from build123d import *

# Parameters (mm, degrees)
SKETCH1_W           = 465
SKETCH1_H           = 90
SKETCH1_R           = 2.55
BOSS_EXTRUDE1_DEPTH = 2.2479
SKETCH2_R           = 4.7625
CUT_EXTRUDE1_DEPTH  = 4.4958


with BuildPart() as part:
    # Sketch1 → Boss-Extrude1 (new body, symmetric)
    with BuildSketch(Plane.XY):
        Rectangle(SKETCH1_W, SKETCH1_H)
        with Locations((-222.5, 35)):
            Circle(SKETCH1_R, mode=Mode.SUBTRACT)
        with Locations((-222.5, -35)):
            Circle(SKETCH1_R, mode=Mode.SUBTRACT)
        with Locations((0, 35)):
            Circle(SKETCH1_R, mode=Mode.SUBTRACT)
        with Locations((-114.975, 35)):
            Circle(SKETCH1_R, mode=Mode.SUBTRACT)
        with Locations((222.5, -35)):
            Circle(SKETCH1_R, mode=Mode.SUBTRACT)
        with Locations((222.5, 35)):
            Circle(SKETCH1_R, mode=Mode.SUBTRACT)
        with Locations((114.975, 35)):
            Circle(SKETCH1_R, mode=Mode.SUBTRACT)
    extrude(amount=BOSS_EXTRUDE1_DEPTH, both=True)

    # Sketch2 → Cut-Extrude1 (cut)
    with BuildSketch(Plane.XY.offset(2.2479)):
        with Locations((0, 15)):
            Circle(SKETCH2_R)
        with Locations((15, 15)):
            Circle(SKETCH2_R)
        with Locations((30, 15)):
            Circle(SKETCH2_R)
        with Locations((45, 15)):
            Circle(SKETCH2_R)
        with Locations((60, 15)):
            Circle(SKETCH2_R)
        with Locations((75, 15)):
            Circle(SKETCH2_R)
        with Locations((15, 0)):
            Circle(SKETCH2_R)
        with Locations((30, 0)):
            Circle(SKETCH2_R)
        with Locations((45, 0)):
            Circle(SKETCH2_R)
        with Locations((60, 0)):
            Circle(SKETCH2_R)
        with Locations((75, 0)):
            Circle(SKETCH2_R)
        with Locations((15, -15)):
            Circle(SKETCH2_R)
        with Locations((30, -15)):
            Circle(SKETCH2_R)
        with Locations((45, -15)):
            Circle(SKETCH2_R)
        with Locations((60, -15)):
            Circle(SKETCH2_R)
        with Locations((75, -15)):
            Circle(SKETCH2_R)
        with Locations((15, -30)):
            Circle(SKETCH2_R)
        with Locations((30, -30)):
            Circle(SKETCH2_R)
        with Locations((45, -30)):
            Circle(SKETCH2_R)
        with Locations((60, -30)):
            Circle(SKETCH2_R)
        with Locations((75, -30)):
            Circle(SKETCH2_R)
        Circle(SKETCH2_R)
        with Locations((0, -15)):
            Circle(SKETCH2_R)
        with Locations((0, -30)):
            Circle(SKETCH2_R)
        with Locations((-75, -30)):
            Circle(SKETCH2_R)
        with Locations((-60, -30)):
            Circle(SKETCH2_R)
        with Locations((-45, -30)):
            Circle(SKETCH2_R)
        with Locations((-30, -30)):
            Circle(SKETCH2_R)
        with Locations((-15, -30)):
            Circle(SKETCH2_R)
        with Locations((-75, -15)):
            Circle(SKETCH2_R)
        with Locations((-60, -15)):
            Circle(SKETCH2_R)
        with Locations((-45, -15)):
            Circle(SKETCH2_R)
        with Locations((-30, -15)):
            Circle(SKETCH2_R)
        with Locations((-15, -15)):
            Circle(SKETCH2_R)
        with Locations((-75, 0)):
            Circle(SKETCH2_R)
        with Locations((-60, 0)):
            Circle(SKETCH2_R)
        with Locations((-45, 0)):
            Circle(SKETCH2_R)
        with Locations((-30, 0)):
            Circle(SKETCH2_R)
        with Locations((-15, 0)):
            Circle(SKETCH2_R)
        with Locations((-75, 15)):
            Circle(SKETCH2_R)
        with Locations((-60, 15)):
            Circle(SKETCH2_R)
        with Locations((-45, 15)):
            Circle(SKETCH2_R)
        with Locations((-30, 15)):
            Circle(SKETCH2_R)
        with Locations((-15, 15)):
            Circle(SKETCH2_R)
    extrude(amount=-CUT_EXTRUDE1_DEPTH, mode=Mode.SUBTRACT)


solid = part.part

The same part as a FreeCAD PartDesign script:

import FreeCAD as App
import Part
import Sketcher

doc = App.newDocument("Part")
body = doc.addObject("PartDesign::Body", "Body")

# Sketch on XY plane
sketch1 = body.newObject("Sketcher::SketchObject", "Sketch")
sketch1.AttachmentSupport = (doc.getObject("XY_Plane"), [""])
sketch1.MapMode = "FlatFace"
sketch1.addGeometry(Part.LineSegment(App.Vector(-232.5, 45, 0), App.Vector(-232.5, -45, 0)), False)
sketch1.addGeometry(Part.LineSegment(App.Vector(-232.5, -45, 0), App.Vector(232.5, -45, 0)), False)
sketch1.addGeometry(Part.LineSegment(App.Vector(232.5, -45, 0), App.Vector(232.5, 45, 0)), False)
sketch1.addGeometry(Part.LineSegment(App.Vector(232.5, 45, 0), App.Vector(-232.5, 45, 0)), False)
sketch1.addGeometry(Part.Circle(App.Vector(-222.5, -35, 0), App.Vector(0, 0, 1), 2.5), False)
sketch1.addGeometry(Part.Circle(App.Vector(222.5, -35, 0), App.Vector(0, 0, 1), 2.5), False)
sketch1.addGeometry(Part.Circle(App.Vector(-222.5, 35, 0), App.Vector(0, 0, 1), 2.5), False)
sketch1.addGeometry(Part.Circle(App.Vector(-115, 35, 0), App.Vector(0, 0, 1), 2.5), False)
sketch1.addGeometry(Part.Circle(App.Vector(0, 35, 0), App.Vector(0, 0, 1), 2.5), False)
sketch1.addGeometry(Part.Circle(App.Vector(115, 35, 0), App.Vector(0, 0, 1), 2.5), False)
sketch1.addGeometry(Part.Circle(App.Vector(222.5, 35, 0), App.Vector(0, 0, 1), 2.5), False)
sketch1.addConstraint(Sketcher.Constraint("Coincident", 0, 2, 1, 1))
sketch1.addConstraint(Sketcher.Constraint("Coincident", 1, 2, 2, 1))
sketch1.addConstraint(Sketcher.Constraint("Coincident", 2, 2, 3, 1))
sketch1.addConstraint(Sketcher.Constraint("Coincident", 3, 2, 0, 1))
sketch1.addConstraint(Sketcher.Constraint("Vertical", 0))
sketch1.addConstraint(Sketcher.Constraint("Horizontal", 1))
sketch1.addConstraint(Sketcher.Constraint("Vertical", 2))
sketch1.addConstraint(Sketcher.Constraint("Horizontal", 3))
sketch1.addConstraint(Sketcher.Constraint("Equal", 4, 5))
sketch1.addConstraint(Sketcher.Constraint("Equal", 5, 6))
sketch1.addConstraint(Sketcher.Constraint("Equal", 6, 7))
sketch1.addConstraint(Sketcher.Constraint("Equal", 7, 8))
sketch1.addConstraint(Sketcher.Constraint("Equal", 8, 9))
sketch1.addConstraint(Sketcher.Constraint("Equal", 9, 10))
sketch1.addConstraint(Sketcher.Constraint("Symmetric", 5, 3, 6, 3, -1, 1))
sketch1.addConstraint(Sketcher.Constraint("Symmetric", 4, 3, 10, 3, -1, 1))
sketch1.addConstraint(Sketcher.Constraint("Symmetric", 0, 2, 2, 2, -1, 1))
sketch1.addConstraint(Sketcher.Constraint("Symmetric", 4, 3, 5, 3, -2))
sketch1.addConstraint(Sketcher.Constraint("Symmetric", 7, 3, 9, 3, -2))
sketch1.addConstraint(Sketcher.Constraint("PointOnObject", 8, 3, -2))
sketch1.addConstraint(Sketcher.Constraint("Horizontal", 6, 3, 7, 3))
sketch1.addConstraint(Sketcher.Constraint("Horizontal", 7, 3, 8, 3))
sketch1.addConstraint(Sketcher.Constraint("Diameter", 4, 5.1))
sketch1.addConstraint(Sketcher.Constraint("DistanceX", 1, 1, 1, 2, 465.0))
sketch1.addConstraint(Sketcher.Constraint("DistanceY", 0, 2, 0, 1, 90.0))
sketch1.addConstraint(Sketcher.Constraint("DistanceY", 4, 3, -1, 1, 35.0))
sketch1.addConstraint(Sketcher.Constraint("DistanceX", 4, 3, 5, 3, 445.0))
sketch1.addConstraint(Sketcher.Constraint("DistanceX", 7, 3, 9, 3, 229.95))
pad1 = body.newObject("PartDesign::Pad", "Pad")
pad1.Profile = sketch1
pad1.Length = 4.4958
pad1.Midplane = True

# Sketch on XY plane
sketch2 = body.newObject("Sketcher::SketchObject", "Sketch001")
sketch2.AttachmentSupport = (doc.getObject("XY_Plane"), [""])
sketch2.MapMode = "FlatFace"
sketch2.AttachmentOffset = App.Placement(App.Vector(0, 0, 2.2479), App.Rotation())
sketch2.addGeometry(Part.Circle(App.Vector(0, 15, 0), App.Vector(0, 0, 1), 4.8), False)
sketch2.addGeometry(Part.Circle(App.Vector(15, 15, 0), App.Vector(0, 0, 1), 4.8), False)
sketch2.addGeometry(Part.Circle(App.Vector(30, 15, 0), App.Vector(0, 0, 1), 4.8), False)
sketch2.addGeometry(Part.Circle(App.Vector(45, 15, 0), App.Vector(0, 0, 1), 4.8), False)
sketch2.addGeometry(Part.Circle(App.Vector(60, 15, 0), App.Vector(0, 0, 1), 4.8), False)
sketch2.addGeometry(Part.Circle(App.Vector(75, 15, 0), App.Vector(0, 0, 1), 4.8), False)
sketch2.addGeometry(Part.Circle(App.Vector(15, 0, 0), App.Vector(0, 0, 1), 4.8), False)
sketch2.addGeometry(Part.Circle(App.Vector(30, 0, 0), App.Vector(0, 0, 1), 4.8), False)
sketch2.addGeometry(Part.Circle(App.Vector(45, 0, 0), App.Vector(0, 0, 1), 4.8), False)
sketch2.addGeometry(Part.Circle(App.Vector(60, 0, 0), App.Vector(0, 0, 1), 4.8), False)
sketch2.addGeometry(Part.Circle(App.Vector(75, 0, 0), App.Vector(0, 0, 1), 4.8), False)
sketch2.addGeometry(Part.Circle(App.Vector(15, -15, 0), App.Vector(0, 0, 1), 4.8), False)
sketch2.addGeometry(Part.Circle(App.Vector(30, -15, 0), App.Vector(0, 0, 1), 4.8), False)
sketch2.addGeometry(Part.Circle(App.Vector(45, -15, 0), App.Vector(0, 0, 1), 4.8), False)
sketch2.addGeometry(Part.Circle(App.Vector(60, -15, 0), App.Vector(0, 0, 1), 4.8), False)
sketch2.addGeometry(Part.Circle(App.Vector(75, -15, 0), App.Vector(0, 0, 1), 4.8), False)
sketch2.addGeometry(Part.Circle(App.Vector(15, -30, 0), App.Vector(0, 0, 1), 4.8), False)
sketch2.addGeometry(Part.Circle(App.Vector(30, -30, 0), App.Vector(0, 0, 1), 4.8), False)
sketch2.addGeometry(Part.Circle(App.Vector(45, -30, 0), App.Vector(0, 0, 1), 4.8), False)
sketch2.addGeometry(Part.Circle(App.Vector(60, -30, 0), App.Vector(0, 0, 1), 4.8), False)
sketch2.addGeometry(Part.Circle(App.Vector(75, -30, 0), App.Vector(0, 0, 1), 4.8), False)
sketch2.addGeometry(Part.Circle(App.Vector(0, 0, 0), App.Vector(0, 0, 1), 4.8), False)
sketch2.addGeometry(Part.Circle(App.Vector(0, -15, 0), App.Vector(0, 0, 1), 4.8), False)
sketch2.addGeometry(Part.Circle(App.Vector(0, -30, 0), App.Vector(0, 0, 1), 4.8), False)
sketch2.addGeometry(Part.Circle(App.Vector(-75, -30, 0), App.Vector(0, 0, 1), 4.8), False)
sketch2.addGeometry(Part.Circle(App.Vector(-60, -30, 0), App.Vector(0, 0, 1), 4.8), False)
sketch2.addGeometry(Part.Circle(App.Vector(-45, -30, 0), App.Vector(0, 0, 1), 4.8), False)
sketch2.addGeometry(Part.Circle(App.Vector(-30, -30, 0), App.Vector(0, 0, 1), 4.8), False)
sketch2.addGeometry(Part.Circle(App.Vector(-15, -30, 0), App.Vector(0, 0, 1), 4.8), False)
sketch2.addGeometry(Part.Circle(App.Vector(-75, -15, 0), App.Vector(0, 0, 1), 4.8), False)
sketch2.addGeometry(Part.Circle(App.Vector(-60, -15, 0), App.Vector(0, 0, 1), 4.8), False)
sketch2.addGeometry(Part.Circle(App.Vector(-45, -15, 0), App.Vector(0, 0, 1), 4.8), False)
sketch2.addGeometry(Part.Circle(App.Vector(-30, -15, 0), App.Vector(0, 0, 1), 4.8), False)
sketch2.addGeometry(Part.Circle(App.Vector(-15, -15, 0), App.Vector(0, 0, 1), 4.8), False)
sketch2.addGeometry(Part.Circle(App.Vector(-75, 0, 0), App.Vector(0, 0, 1), 4.8), False)
sketch2.addGeometry(Part.Circle(App.Vector(-60, 0, 0), App.Vector(0, 0, 1), 4.8), False)
sketch2.addGeometry(Part.Circle(App.Vector(-45, 0, 0), App.Vector(0, 0, 1), 4.8), False)
sketch2.addGeometry(Part.Circle(App.Vector(-30, 0, 0), App.Vector(0, 0, 1), 4.8), False)
sketch2.addGeometry(Part.Circle(App.Vector(-15, 0, 0), App.Vector(0, 0, 1), 4.8), False)
sketch2.addGeometry(Part.Circle(App.Vector(-75, 15, 0), App.Vector(0, 0, 1), 4.8), False)
sketch2.addGeometry(Part.Circle(App.Vector(-60, 15, 0), App.Vector(0, 0, 1), 4.8), False)
sketch2.addGeometry(Part.Circle(App.Vector(-45, 15, 0), App.Vector(0, 0, 1), 4.8), False)
sketch2.addGeometry(Part.Circle(App.Vector(-30, 15, 0), App.Vector(0, 0, 1), 4.8), False)
sketch2.addGeometry(Part.Circle(App.Vector(-15, 15, 0), App.Vector(0, 0, 1), 4.8), False)
sketch2.addConstraint(Sketcher.Constraint("Coincident", 21, 3, -1, 1))
sketch2.addConstraint(Sketcher.Constraint("Equal", 0, 1))
sketch2.addConstraint(Sketcher.Constraint("Equal", 1, 2))
sketch2.addConstraint(Sketcher.Constraint("Equal", 2, 3))
sketch2.addConstraint(Sketcher.Constraint("Equal", 3, 4))
sketch2.addConstraint(Sketcher.Constraint("Equal", 4, 5))
sketch2.addConstraint(Sketcher.Constraint("Equal", 5, 6))
sketch2.addConstraint(Sketcher.Constraint("Equal", 6, 7))
sketch2.addConstraint(Sketcher.Constraint("Equal", 7, 8))
sketch2.addConstraint(Sketcher.Constraint("Equal", 8, 9))
sketch2.addConstraint(Sketcher.Constraint("Equal", 9, 10))
sketch2.addConstraint(Sketcher.Constraint("Equal", 10, 11))
sketch2.addConstraint(Sketcher.Constraint("Equal", 11, 12))
sketch2.addConstraint(Sketcher.Constraint("Equal", 12, 13))
sketch2.addConstraint(Sketcher.Constraint("Equal", 13, 14))
sketch2.addConstraint(Sketcher.Constraint("Equal", 14, 15))
sketch2.addConstraint(Sketcher.Constraint("Equal", 15, 16))
sketch2.addConstraint(Sketcher.Constraint("Equal", 16, 17))
sketch2.addConstraint(Sketcher.Constraint("Equal", 17, 18))
sketch2.addConstraint(Sketcher.Constraint("Equal", 18, 19))
sketch2.addConstraint(Sketcher.Constraint("Equal", 19, 20))
sketch2.addConstraint(Sketcher.Constraint("Equal", 20, 21))
sketch2.addConstraint(Sketcher.Constraint("Equal", 21, 22))
sketch2.addConstraint(Sketcher.Constraint("Equal", 22, 23))
sketch2.addConstraint(Sketcher.Constraint("Equal", 23, 24))
sketch2.addConstraint(Sketcher.Constraint("Equal", 24, 25))
sketch2.addConstraint(Sketcher.Constraint("Equal", 25, 26))
sketch2.addConstraint(Sketcher.Constraint("Equal", 26, 27))
sketch2.addConstraint(Sketcher.Constraint("Equal", 27, 28))
sketch2.addConstraint(Sketcher.Constraint("Equal", 28, 29))
sketch2.addConstraint(Sketcher.Constraint("Equal", 29, 30))
sketch2.addConstraint(Sketcher.Constraint("Equal", 30, 31))
sketch2.addConstraint(Sketcher.Constraint("Equal", 31, 32))
sketch2.addConstraint(Sketcher.Constraint("Equal", 32, 33))
sketch2.addConstraint(Sketcher.Constraint("Equal", 33, 34))
sketch2.addConstraint(Sketcher.Constraint("Equal", 34, 35))
sketch2.addConstraint(Sketcher.Constraint("Equal", 35, 36))
sketch2.addConstraint(Sketcher.Constraint("Equal", 36, 37))
sketch2.addConstraint(Sketcher.Constraint("Equal", 37, 38))
sketch2.addConstraint(Sketcher.Constraint("Equal", 38, 39))
sketch2.addConstraint(Sketcher.Constraint("Equal", 39, 40))
sketch2.addConstraint(Sketcher.Constraint("Equal", 40, 41))
sketch2.addConstraint(Sketcher.Constraint("Equal", 41, 42))
sketch2.addConstraint(Sketcher.Constraint("Equal", 42, 43))
sketch2.addConstraint(Sketcher.Constraint("Symmetric", 0, 3, 22, 3, -1, 1))
sketch2.addConstraint(Sketcher.Constraint("Symmetric", 5, 3, 29, 3, -1, 1))
sketch2.addConstraint(Sketcher.Constraint("Symmetric", 4, 3, 30, 3, -1, 1))
sketch2.addConstraint(Sketcher.Constraint("Symmetric", 3, 3, 31, 3, -1, 1))
sketch2.addConstraint(Sketcher.Constraint("Symmetric", 2, 3, 32, 3, -1, 1))
sketch2.addConstraint(Sketcher.Constraint("Symmetric", 1, 3, 33, 3, -1, 1))
sketch2.addConstraint(Sketcher.Constraint("Symmetric", 10, 3, 34, 3, -1, 1))
sketch2.addConstraint(Sketcher.Constraint("Symmetric", 9, 3, 35, 3, -1, 1))
sketch2.addConstraint(Sketcher.Constraint("Symmetric", 8, 3, 36, 3, -1, 1))
sketch2.addConstraint(Sketcher.Constraint("Symmetric", 7, 3, 37, 3, -1, 1))
sketch2.addConstraint(Sketcher.Constraint("Symmetric", 6, 3, 38, 3, -1, 1))
sketch2.addConstraint(Sketcher.Constraint("Symmetric", 15, 3, 39, 3, -1, 1))
sketch2.addConstraint(Sketcher.Constraint("Symmetric", 14, 3, 40, 3, -1, 1))
sketch2.addConstraint(Sketcher.Constraint("Symmetric", 13, 3, 41, 3, -1, 1))
sketch2.addConstraint(Sketcher.Constraint("Symmetric", 12, 3, 42, 3, -1, 1))
sketch2.addConstraint(Sketcher.Constraint("Symmetric", 11, 3, 43, 3, -1, 1))
sketch2.addConstraint(Sketcher.Constraint("Symmetric", 20, 3, 24, 3, -2))
sketch2.addConstraint(Sketcher.Constraint("Symmetric", 19, 3, 25, 3, -2))
sketch2.addConstraint(Sketcher.Constraint("Symmetric", 18, 3, 26, 3, -2))
sketch2.addConstraint(Sketcher.Constraint("Symmetric", 17, 3, 27, 3, -2))
sketch2.addConstraint(Sketcher.Constraint("Symmetric", 16, 3, 28, 3, -2))
sketch2.addConstraint(Sketcher.Constraint("Symmetric", 15, 3, 29, 3, -2))
sketch2.addConstraint(Sketcher.Constraint("Symmetric", 14, 3, 30, 3, -2))
sketch2.addConstraint(Sketcher.Constraint("Symmetric", 13, 3, 31, 3, -2))
sketch2.addConstraint(Sketcher.Constraint("Symmetric", 12, 3, 32, 3, -2))
sketch2.addConstraint(Sketcher.Constraint("Symmetric", 11, 3, 33, 3, -2))
sketch2.addConstraint(Sketcher.Constraint("PointOnObject", 0, 3, -2))
sketch2.addConstraint(Sketcher.Constraint("PointOnObject", 6, 3, -1))
sketch2.addConstraint(Sketcher.Constraint("PointOnObject", 7, 3, -1))
sketch2.addConstraint(Sketcher.Constraint("PointOnObject", 8, 3, -1))
sketch2.addConstraint(Sketcher.Constraint("PointOnObject", 9, 3, -1))
sketch2.addConstraint(Sketcher.Constraint("PointOnObject", 10, 3, -1))
sketch2.addConstraint(Sketcher.Constraint("PointOnObject", 23, 3, -2))
sketch2.addConstraint(Sketcher.Constraint("Horizontal", 0, 3, 1, 3))
sketch2.addConstraint(Sketcher.Constraint("Horizontal", 1, 3, 2, 3))
sketch2.addConstraint(Sketcher.Constraint("Horizontal", 2, 3, 3, 3))
sketch2.addConstraint(Sketcher.Constraint("Horizontal", 3, 3, 4, 3))
sketch2.addConstraint(Sketcher.Constraint("Horizontal", 4, 3, 5, 3))
sketch2.addConstraint(Sketcher.Constraint("Horizontal", 16, 3, 17, 3))
sketch2.addConstraint(Sketcher.Constraint("Horizontal", 17, 3, 18, 3))
sketch2.addConstraint(Sketcher.Constraint("Horizontal", 18, 3, 19, 3))
sketch2.addConstraint(Sketcher.Constraint("Horizontal", 19, 3, 20, 3))
sketch2.addConstraint(Sketcher.Constraint("Horizontal", 20, 3, 23, 3))
sketch2.addConstraint(Sketcher.Constraint("Vertical", 1, 3, 6, 3))
sketch2.addConstraint(Sketcher.Constraint("Vertical", 2, 3, 7, 3))
sketch2.addConstraint(Sketcher.Constraint("Vertical", 3, 3, 8, 3))
sketch2.addConstraint(Sketcher.Constraint("Vertical", 4, 3, 9, 3))
sketch2.addConstraint(Sketcher.Constraint("Vertical", 5, 3, 10, 3))
sketch2.addConstraint(Sketcher.Constraint("Vertical", 11, 3, 16, 3))
sketch2.addConstraint(Sketcher.Constraint("Vertical", 12, 3, 17, 3))
sketch2.addConstraint(Sketcher.Constraint("Vertical", 13, 3, 18, 3))
sketch2.addConstraint(Sketcher.Constraint("Vertical", 14, 3, 19, 3))
sketch2.addConstraint(Sketcher.Constraint("Vertical", 15, 3, 20, 3))
sketch2.addConstraint(Sketcher.Constraint("Diameter", 0, 9.525))
sketch2.addConstraint(Sketcher.Constraint("DistanceY", -1, 1, 0, 3, 15.0))
sketch2.addConstraint(Sketcher.Constraint("DistanceX", -1, 1, 1, 3, 15.0))
sketch2.addConstraint(Sketcher.Constraint("DistanceX", -1, 1, 2, 3, 30.0))
sketch2.addConstraint(Sketcher.Constraint("DistanceX", -1, 1, 3, 3, 45.0))
sketch2.addConstraint(Sketcher.Constraint("DistanceX", -1, 1, 4, 3, 60.0))
sketch2.addConstraint(Sketcher.Constraint("DistanceX", -1, 1, 5, 3, 75.0))
sketch2.addConstraint(Sketcher.Constraint("DistanceY", 16, 3, -1, 1, 30.0))
pocket1 = body.newObject("PartDesign::Pocket", "Pocket")
pocket1.Profile = sketch2
pocket1.Length = 4.4958

doc.recompute()
